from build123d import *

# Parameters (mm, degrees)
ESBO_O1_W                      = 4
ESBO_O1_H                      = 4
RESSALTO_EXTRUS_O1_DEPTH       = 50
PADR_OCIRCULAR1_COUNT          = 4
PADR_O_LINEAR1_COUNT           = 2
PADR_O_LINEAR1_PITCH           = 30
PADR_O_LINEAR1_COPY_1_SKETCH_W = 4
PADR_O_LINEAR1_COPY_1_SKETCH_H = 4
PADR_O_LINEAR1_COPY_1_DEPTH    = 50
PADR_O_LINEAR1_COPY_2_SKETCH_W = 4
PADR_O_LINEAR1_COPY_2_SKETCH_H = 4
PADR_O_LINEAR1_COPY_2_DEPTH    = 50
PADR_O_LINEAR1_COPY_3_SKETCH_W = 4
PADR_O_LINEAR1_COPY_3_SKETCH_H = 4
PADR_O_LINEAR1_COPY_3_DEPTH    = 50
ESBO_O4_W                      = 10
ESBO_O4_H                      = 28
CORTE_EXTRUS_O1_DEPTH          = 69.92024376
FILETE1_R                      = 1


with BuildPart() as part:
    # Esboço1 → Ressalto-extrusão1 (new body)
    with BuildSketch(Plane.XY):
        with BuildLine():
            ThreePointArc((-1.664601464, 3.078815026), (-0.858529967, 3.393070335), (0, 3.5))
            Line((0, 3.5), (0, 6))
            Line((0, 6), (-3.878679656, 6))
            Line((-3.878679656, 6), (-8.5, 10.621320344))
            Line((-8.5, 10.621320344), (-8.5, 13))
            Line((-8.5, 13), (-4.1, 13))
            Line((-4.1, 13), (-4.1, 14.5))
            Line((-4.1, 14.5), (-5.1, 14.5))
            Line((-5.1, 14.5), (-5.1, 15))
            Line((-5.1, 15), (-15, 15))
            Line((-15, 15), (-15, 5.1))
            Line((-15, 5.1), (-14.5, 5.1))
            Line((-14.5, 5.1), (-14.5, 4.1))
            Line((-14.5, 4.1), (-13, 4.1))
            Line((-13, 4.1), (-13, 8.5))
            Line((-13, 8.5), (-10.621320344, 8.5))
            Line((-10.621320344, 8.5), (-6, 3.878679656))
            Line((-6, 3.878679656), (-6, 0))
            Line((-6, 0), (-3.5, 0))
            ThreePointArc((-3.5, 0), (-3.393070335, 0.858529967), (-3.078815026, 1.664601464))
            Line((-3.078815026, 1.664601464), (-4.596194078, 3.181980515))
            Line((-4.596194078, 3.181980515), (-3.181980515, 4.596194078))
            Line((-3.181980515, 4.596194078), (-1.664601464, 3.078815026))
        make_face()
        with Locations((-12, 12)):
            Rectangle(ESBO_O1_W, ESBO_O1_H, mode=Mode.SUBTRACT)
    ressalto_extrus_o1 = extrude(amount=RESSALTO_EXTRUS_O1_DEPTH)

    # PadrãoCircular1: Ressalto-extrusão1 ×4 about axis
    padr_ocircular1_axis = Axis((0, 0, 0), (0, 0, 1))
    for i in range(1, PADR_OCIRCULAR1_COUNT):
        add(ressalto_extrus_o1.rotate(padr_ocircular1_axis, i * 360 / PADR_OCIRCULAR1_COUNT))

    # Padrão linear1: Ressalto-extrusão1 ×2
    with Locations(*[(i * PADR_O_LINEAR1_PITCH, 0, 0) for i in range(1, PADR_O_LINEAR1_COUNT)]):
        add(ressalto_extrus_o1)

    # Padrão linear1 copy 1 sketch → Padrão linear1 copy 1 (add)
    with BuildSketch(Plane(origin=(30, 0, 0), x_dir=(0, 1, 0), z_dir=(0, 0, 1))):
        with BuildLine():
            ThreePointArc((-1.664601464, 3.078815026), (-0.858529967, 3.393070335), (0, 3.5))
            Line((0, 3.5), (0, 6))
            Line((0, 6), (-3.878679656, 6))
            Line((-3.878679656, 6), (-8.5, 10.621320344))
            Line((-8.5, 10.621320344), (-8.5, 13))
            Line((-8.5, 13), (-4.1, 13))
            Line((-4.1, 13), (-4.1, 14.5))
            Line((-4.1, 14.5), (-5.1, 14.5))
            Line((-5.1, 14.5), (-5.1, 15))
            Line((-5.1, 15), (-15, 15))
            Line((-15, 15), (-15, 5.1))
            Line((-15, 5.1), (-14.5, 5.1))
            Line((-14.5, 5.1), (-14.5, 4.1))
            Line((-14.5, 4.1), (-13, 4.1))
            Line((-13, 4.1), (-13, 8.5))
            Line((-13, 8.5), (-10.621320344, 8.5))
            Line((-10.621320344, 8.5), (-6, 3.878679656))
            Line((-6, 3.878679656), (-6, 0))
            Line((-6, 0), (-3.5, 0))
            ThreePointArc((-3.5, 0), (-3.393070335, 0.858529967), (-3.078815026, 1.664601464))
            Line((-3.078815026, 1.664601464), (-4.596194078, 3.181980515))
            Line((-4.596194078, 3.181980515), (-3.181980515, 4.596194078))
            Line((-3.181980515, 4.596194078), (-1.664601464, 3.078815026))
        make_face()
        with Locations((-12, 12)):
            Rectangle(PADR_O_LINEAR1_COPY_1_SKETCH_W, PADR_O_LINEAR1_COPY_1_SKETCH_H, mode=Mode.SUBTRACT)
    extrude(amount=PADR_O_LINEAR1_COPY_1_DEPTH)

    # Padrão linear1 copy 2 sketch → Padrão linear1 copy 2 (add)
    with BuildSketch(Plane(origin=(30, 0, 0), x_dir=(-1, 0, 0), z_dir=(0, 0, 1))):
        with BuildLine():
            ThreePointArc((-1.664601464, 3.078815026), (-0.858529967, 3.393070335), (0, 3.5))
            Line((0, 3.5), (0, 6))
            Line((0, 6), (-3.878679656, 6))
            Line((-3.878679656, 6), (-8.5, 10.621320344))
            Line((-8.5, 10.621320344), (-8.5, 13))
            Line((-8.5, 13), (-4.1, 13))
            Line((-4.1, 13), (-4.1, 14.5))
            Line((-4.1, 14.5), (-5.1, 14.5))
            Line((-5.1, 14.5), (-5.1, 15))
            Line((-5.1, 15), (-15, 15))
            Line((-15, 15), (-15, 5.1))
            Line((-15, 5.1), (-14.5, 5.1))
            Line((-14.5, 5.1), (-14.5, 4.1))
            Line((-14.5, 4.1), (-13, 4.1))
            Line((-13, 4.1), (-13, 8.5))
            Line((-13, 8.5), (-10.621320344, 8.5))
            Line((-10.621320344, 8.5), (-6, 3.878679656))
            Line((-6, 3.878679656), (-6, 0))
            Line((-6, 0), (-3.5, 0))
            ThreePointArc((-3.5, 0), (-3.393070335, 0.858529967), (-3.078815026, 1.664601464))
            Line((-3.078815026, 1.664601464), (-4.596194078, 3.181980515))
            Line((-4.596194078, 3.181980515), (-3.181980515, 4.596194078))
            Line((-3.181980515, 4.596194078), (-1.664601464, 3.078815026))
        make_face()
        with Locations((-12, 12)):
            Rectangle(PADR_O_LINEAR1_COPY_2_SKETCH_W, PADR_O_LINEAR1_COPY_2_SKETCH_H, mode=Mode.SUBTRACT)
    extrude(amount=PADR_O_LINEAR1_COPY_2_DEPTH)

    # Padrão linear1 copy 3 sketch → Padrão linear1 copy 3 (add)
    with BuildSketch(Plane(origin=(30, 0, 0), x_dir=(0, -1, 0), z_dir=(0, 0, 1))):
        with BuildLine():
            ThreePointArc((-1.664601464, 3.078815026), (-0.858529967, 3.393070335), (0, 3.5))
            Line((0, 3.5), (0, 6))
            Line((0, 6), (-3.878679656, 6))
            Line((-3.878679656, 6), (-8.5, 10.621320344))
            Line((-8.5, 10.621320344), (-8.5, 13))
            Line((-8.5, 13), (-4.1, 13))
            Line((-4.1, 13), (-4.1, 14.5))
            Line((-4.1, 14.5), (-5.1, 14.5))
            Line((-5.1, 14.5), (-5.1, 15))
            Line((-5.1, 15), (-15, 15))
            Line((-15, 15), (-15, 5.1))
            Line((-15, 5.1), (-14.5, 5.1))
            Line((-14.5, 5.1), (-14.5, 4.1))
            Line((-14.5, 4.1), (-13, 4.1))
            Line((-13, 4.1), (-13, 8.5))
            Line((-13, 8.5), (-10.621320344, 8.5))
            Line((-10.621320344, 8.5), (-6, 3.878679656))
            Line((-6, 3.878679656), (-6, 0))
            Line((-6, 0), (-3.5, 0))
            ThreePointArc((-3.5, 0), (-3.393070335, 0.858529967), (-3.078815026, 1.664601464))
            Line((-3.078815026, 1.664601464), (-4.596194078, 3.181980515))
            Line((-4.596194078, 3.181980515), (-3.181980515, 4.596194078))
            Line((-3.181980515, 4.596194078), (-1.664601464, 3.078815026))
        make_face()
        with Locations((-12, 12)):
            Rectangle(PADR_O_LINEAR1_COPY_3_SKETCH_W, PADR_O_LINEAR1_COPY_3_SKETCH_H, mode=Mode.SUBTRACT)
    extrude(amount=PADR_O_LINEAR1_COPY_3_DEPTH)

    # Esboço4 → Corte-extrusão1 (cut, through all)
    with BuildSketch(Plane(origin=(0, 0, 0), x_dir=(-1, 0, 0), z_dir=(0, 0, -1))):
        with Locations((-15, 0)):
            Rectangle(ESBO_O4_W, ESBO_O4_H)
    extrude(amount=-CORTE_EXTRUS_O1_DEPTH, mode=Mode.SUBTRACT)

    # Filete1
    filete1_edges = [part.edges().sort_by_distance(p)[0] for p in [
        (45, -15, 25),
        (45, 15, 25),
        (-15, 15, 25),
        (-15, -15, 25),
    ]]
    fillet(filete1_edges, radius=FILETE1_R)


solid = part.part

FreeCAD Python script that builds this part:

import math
import FreeCAD as App
import Part
import Sketcher

V = App.Vector
Q = App.Units.Quantity


def edges_at(feature, points):
    """Names of the edges that pass closest to the given points."""
    edges = feature.Shape.Edges
    near = lambda p: min(range(len(edges)), key=lambda i: edges[i].distToShape(Part.Vertex(*p))[0])
    return sorted({f"Edge{near(p) + 1}" for p in points})

doc = App.newDocument("Part")
body = doc.addObject("PartDesign::Body", "Body")

sketch1 = body.newObject("Sketcher::SketchObject", "Sketch")
sketch1.AttachmentSupport = (doc.getObject("XY_Plane"), [""])
sketch1.MapMode = "FlatFace"
sketch1.addGeometry(Part.ArcOfCircle(Part.Circle(V(0, 0, 0), V(0, 0, 1), 3.5), math.radians(90), math.radians(118)), False)
sketch1.addGeometry(Part.LineSegment(V(0, 3.5, 0), V(0, 6, 0)), False)
sketch1.addGeometry(Part.LineSegment(V(0, 6, 0), V(-3.9, 6, 0)), False)
sketch1.addGeometry(Part.LineSegment(V(-3.9, 6, 0), V(-8.5, 10.6, 0)), False)
sketch1.addGeometry(Part.LineSegment(V(-8.5, 10.6, 0), V(-8.5, 13, 0)), False)
sketch1.addGeometry(Part.LineSegment(V(-8.5, 13, 0), V(-4.1, 13, 0)), False)
sketch1.addGeometry(Part.LineSegment(V(-4.1, 13, 0), V(-4.1, 14.5, 0)), False)
sketch1.addGeometry(Part.LineSegment(V(-4.1, 14.5, 0), V(-5.1, 14.5, 0)), False)
sketch1.addGeometry(Part.LineSegment(V(-5.1, 14.5, 0), V(-5.1, 15, 0)), False)
sketch1.addGeometry(Part.LineSegment(V(-5.1, 15, 0), V(-15, 15, 0)), False)
sketch1.addGeometry(Part.LineSegment(V(-15, 15, 0), V(-15, 5.1, 0)), False)
sketch1.addGeometry(Part.LineSegment(V(-15, 5.1, 0), V(-14.5, 5.1, 0)), False)
sketch1.addGeometry(Part.LineSegment(V(-14.5, 5.1, 0), V(-14.5, 4.1, 0)), False)
sketch1.addGeometry(Part.LineSegment(V(-14.5, 4.1, 0), V(-13, 4.1, 0)), False)
sketch1.addGeometry(Part.LineSegment(V(-13, 4.1, 0), V(-13, 8.5, 0)), False)
sketch1.addGeometry(Part.LineSegment(V(-13, 8.5, 0), V(-10.6, 8.5, 0)), False)
sketch1.addGeometry(Part.LineSegment(V(-10.6, 8.5, 0), V(-6, 3.9, 0)), False)
sketch1.addGeometry(Part.LineSegment(V(-6, 3.9, 0), V(-6, 0, 0)), False)
sketch1.addGeometry(Part.LineSegment(V(-6, 0, 0), V(-3.5, 0, 0)), False)
sketch1.addGeometry(Part.ArcOfCircle(Part.Circle(V(0, 0, 0), V(0, 0, 1), 3.5), math.radians(152), math.radians(180)), False)
sketch1.addGeometry(Part.LineSegment(V(-3.1, 1.7, 0), V(-4.6, 3.2, 0)), False)
sketch1.addGeometry(Part.LineSegment(V(-4.6, 3.2, 0), V(-3.2, 4.6, 0)), False)
sketch1.addGeometry(Part.LineSegment(V(-3.2, 4.6, 0), V(-1.7, 3.1, 0)), False)
sketch1.addGeometry(Part.LineSegment(V(-10, 10, 0), V(-14, 10, 0)), False)
sketch1.addGeometry(Part.LineSegment(V(-14, 10, 0), V(-14, 14, 0)), False)
sketch1.addGeometry(Part.LineSegment(V(-14, 14, 0), V(-10, 14, 0)), False)
sketch1.addGeometry(Part.LineSegment(V(-10, 14, 0), V(-10, 10, 0)), False)
sketch1.addConstraint(Sketcher.Constraint("Coincident", 0, 1, 1, 1))
sketch1.addConstraint(Sketcher.Constraint("Coincident", 1, 2, 2, 1))
sketch1.addConstraint(Sketcher.Constraint("Coincident", 2, 2, 3, 1))
sketch1.addConstraint(Sketcher.Constraint("Coincident", 3, 2, 4, 1))
sketch1.addConstraint(Sketcher.Constraint("Coincident", 4, 2, 5, 1))
sketch1.addConstraint(Sketcher.Constraint("Coincident", 5, 2, 6, 1))
sketch1.addConstraint(Sketcher.Constraint("Coincident", 6, 2, 7, 1))
sketch1.addConstraint(Sketcher.Constraint("Coincident", 7, 2, 8, 1))
sketch1.addConstraint(Sketcher.Constraint("Coincident", 8, 2, 9, 1))
sketch1.addConstraint(Sketcher.Constraint("Coincident", 9, 2, 10, 1))
sketch1.addConstraint(Sketcher.Constraint("Coincident", 10, 2, 11, 1))
sketch1.addConstraint(Sketcher.Constraint("Coincident", 11, 2, 12, 1))
sketch1.addConstraint(Sketcher.Constraint("Coincident", 12, 2, 13, 1))
sketch1.addConstraint(Sketcher.Constraint("Coincident", 13, 2, 14, 1))
sketch1.addConstraint(Sketcher.Constraint("Coincident", 14, 2, 15, 1))
sketch1.addConstraint(Sketcher.Constraint("Coincident", 15, 2, 16, 1))
sketch1.addConstraint(Sketcher.Constraint("Coincident", 16, 2, 17, 1))
sketch1.addConstraint(Sketcher.Constraint("Coincident", 17, 2, 18, 1))
sketch1.addConstraint(Sketcher.Constraint("Coincident", 18, 2, 19, 2))
sketch1.addConstraint(Sketcher.Constraint("Coincident", 19, 1, 20, 1))
sketch1.addConstraint(Sketcher.Constraint("Coincident", 20, 2, 21, 1))
sketch1.addConstraint(Sketcher.Constraint("Coincident", 21, 2, 22, 1))
sketch1.addConstraint(Sketcher.Constraint("Coincident", 22, 2, 0, 2))
sketch1.addConstraint(Sketcher.Constraint("Coincident", 23, 2, 24, 1))
sketch1.addConstraint(Sketcher.Constraint("Coincident", 24, 2, 25, 1))
sketch1.addConstraint(Sketcher.Constraint("Coincident", 25, 2, 26, 1))
sketch1.addConstraint(Sketcher.Constraint("Coincident", 26, 2, 23, 1))
sketch1.addConstraint(Sketcher.Constraint("Vertical", 1))
sketch1.addConstraint(Sketcher.Constraint("Horizontal", 2))
sketch1.addConstraint(Sketcher.Constraint("Vertical", 4))
sketch1.addConstraint(Sketcher.Constraint("Horizontal", 5))
sketch1.addConstraint(Sketcher.Constraint("Vertical", 6))
sketch1.addConstraint(Sketcher.Constraint("Horizontal", 7))
sketch1.addConstraint(Sketcher.Constraint("Vertical", 8))
sketch1.addConstraint(Sketcher.Constraint("Horizontal", 9))
sketch1.addConstraint(Sketcher.Constraint("Vertical", 10))
sketch1.addConstraint(Sketcher.Constraint("Horizontal", 11))
sketch1.addConstraint(Sketcher.Constraint("Vertical", 12))
sketch1.addConstraint(Sketcher.Constraint("Horizontal", 13))
sketch1.addConstraint(Sketcher.Constraint("Vertical", 14))
sketch1.addConstraint(Sketcher.Constraint("Horizontal", 15))
sketch1.addConstraint(Sketcher.Constraint("Vertical", 17))
sketch1.addConstraint(Sketcher.Constraint("Horizontal", 18))
sketch1.addConstraint(Sketcher.Constraint("Horizontal", 23))
sketch1.addConstraint(Sketcher.Constraint("Vertical", 24))
sketch1.addConstraint(Sketcher.Constraint("Horizontal", 25))
sketch1.addConstraint(Sketcher.Constraint("Vertical", 26))
sketch1.addConstraint(Sketcher.Constraint("Coincident", 0, 3, -1, 1))
sketch1.addConstraint(Sketcher.Constraint("Coincident", 19, 3, -1, 1))
sketch1.addConstraint(Sketcher.Constraint("Equal", 0, 19))
sketch1.addConstraint(Sketcher.Constraint("PointOnObject", 0, 1, -2))
sketch1.addConstraint(Sketcher.Constraint("PointOnObject", 17, 2, -1))
sketch1.addConstraint(Sketcher.Constraint("Parallel", 3, 16))
sketch1.addConstraint(Sketcher.Constraint("Parallel", 16, 20))
sketch1.addConstraint(Sketcher.Constraint("Perpendicular", 20, 21))
sketch1.addConstraint(Sketcher.Constraint("Perpendicular", 21, 22))
sketch1.addConstraint(Sketcher.Constraint("Equal", 18, 1))
sketch1.addConstraint(Sketcher.Constraint("Equal", 15, 4))
sketch1.addConstraint(Sketcher.Constraint("Equal", 13, 6))
sketch1.addConstraint(Sketcher.Constraint("Equal", 11, 8))
sketch1.addConstraint(Sketcher.Constraint("Equal", 9, 10))
sketch1.addConstraint(Sketcher.Constraint("Equal", 7, 12))
sketch1.addConstraint(Sketcher.Constraint("Equal", 5, 14))
sketch1.addConstraint(Sketcher.Constraint("Equal", 2, 17))
sketch1.addConstraint(Sketcher.Constraint("Equal", 25, 24))
sketch1.addConstraint(Sketcher.Constraint("Equal", 20, 22))
sketch1.addConstraint(Sketcher.Constraint("Radius", 0, 3.5))
sketch1.addConstraint(Sketcher.Constraint("DistanceX", 7, 2, 7, 1, 1.0))
sketch1.addConstraint(Sketcher.Constraint("DistanceX", 23, 2, 23, 1, 4.0))
sketch1.addConstraint(Sketcher.Constraint("Angle", 3, Q("135 deg")))
sketch1.addConstraint(Sketcher.Constraint("Distance", 21, 2.0))
sketch1.addConstraint(Sketcher.Constraint("DistanceX", 5, 1, 5, 2, 4.4))
sketch1.addConstraint(Sketcher.Constraint("DistanceX", 9, 2, 9, 1, 9.9))
sketch1.addConstraint(Sketcher.Constraint("DistanceX", 11, 1, 11, 2, 0.5))
sketch1.addConstraint(Sketcher.Constraint("DistanceX", 13, 1, 13, 2, 1.5))
sketch1.addConstraint(Sketcher.Constraint("DistanceX", 18, 1, 18, 2, 2.5))
sketch1.addConstraint(Sketcher.Constraint("DistanceY", -1, 1, 4, 2, 13.0))
sketch1.addConstraint(Sketcher.Constraint("DistanceX", 23, 2, -1, 1, 14.0))
sketch1.addConstraint(Sketcher.Constraint("DistanceY", -1, 1, 23, 2, 10.0))
sketch1.addConstraint(Sketcher.Constraint("Distance", 20, 2.145898))
sketch1.addConstraint(Sketcher.Constraint("DistanceX", 2, 2, 2, 1, 3.87868))
pad1 = body.newObject("PartDesign::Pad", "Pad")
pad1.Profile = sketch1
pad1.Length = 50
doc.recompute()

polarpattern = body.newObject("PartDesign::PolarPattern", "PolarPattern")
polarpattern.Originals = [pad1]
polarpattern.Axis = (doc.getObject("Z_Axis"), [""])
polarpattern.Angle = 360
polarpattern.Occurrences = 4
body.Tip = polarpattern
doc.recompute()

linearpattern = body.newObject("PartDesign::LinearPattern", "LinearPattern")
linearpattern.Originals = [pad1]
linearpattern.Direction = (doc.getObject("X_Axis"), [""])
linearpattern.Mode = "offset"
linearpattern.Offset = 30
linearpattern.Occurrences = 2
body.Tip = linearpattern

sketch2 = body.newObject("Sketcher::SketchObject", "Sketch001")
sketch2.AttachmentSupport = (doc.getObject("XY_Plane"), [""])
sketch2.MapMode = "FlatFace"
sketch2.addGeometry(Part.ArcOfCircle(Part.Circle(V(30, 0, 0), V(0, 0, 1), 3.5), math.radians(180), math.radians(208)), False)
sketch2.addGeometry(Part.LineSegment(V(26.5, 0, 0), V(24, 0, 0)), False)
sketch2.addGeometry(Part.LineSegment(V(24, 0, 0), V(24, -3.9, 0)), False)
sketch2.addGeometry(Part.LineSegment(V(24, -3.9, 0), V(19.4, -8.5, 0)), False)
sketch2.addGeometry(Part.LineSegment(V(19.4, -8.5, 0), V(17, -8.5, 0)), False)
sketch2.addGeometry(Part.LineSegment(V(17, -8.5, 0), V(17, -4.1, 0)), False)
sketch2.addGeometry(Part.LineSegment(V(17, -4.1, 0), V(15.5, -4.1, 0)), False)
sketch2.addGeometry(Part.LineSegment(V(15.5, -4.1, 0), V(15.5, -5.1, 0)), False)
sketch2.addGeometry(Part.LineSegment(V(15.5, -5.1, 0), V(15, -5.1, 0)), False)
sketch2.addGeometry(Part.LineSegment(V(15, -5.1, 0), V(15, -15, 0)), False)
sketch2.addGeometry(Part.LineSegment(V(15, -15, 0), V(24.9, -15, 0)), False)
sketch2.addGeometry(Part.LineSegment(V(24.9, -15, 0), V(24.9, -14.5, 0)), False)
sketch2.addGeometry(Part.LineSegment(V(24.9, -14.5, 0), V(25.9, -14.5, 0)), False)
sketch2.addGeometry(Part.LineSegment(V(25.9, -14.5, 0), V(25.9, -13, 0)), False)
sketch2.addGeometry(Part.LineSegment(V(25.9, -13, 0), V(21.5, -13, 0)), False)
sketch2.addGeometry(Part.LineSegment(V(21.5, -13, 0), V(21.5, -10.6, 0)), False)
sketch2.addGeometry(Part.LineSegment(V(21.5, -10.6, 0), V(26.1, -6, 0)), False)
sketch2.addGeometry(Part.LineSegment(V(26.1, -6, 0), V(30, -6, 0)), False)
sketch2.addGeometry(Part.LineSegment(V(30, -6, 0), V(30, -3.5, 0)), False)
sketch2.addGeometry(Part.ArcOfCircle(Part.Circle(V(30, 0, 0), V(0, 0, 1), 3.5), math.radians(-118), math.radians(-90)), False)
sketch2.addGeometry(Part.LineSegment(V(28.3, -3.1, 0), V(26.8, -4.6, 0)), False)
sketch2.addGeometry(Part.LineSegment(V(26.8, -4.6, 0), V(25.4, -3.2, 0)), False)
sketch2.addGeometry(Part.LineSegment(V(25.4, -3.2, 0), V(26.9, -1.7, 0)), False)
sketch2.addGeometry(Part.LineSegment(V(20, -10, 0), V(20, -14, 0)), False)
sketch2.addGeometry(Part.LineSegment(V(20, -14, 0), V(16, -14, 0)), False)
sketch2.addGeometry(Part.LineSegment(V(16, -14, 0), V(16, -10, 0)), False)
sketch2.addGeometry(Part.LineSegment(V(16, -10, 0), V(20, -10, 0)), False)
sketch2.addConstraint(Sketcher.Constraint("Coincident", 0, 1, 1, 1))
sketch2.addConstraint(Sketcher.Constraint("Coincident", 1, 2, 2, 1))
sketch2.addConstraint(Sketcher.Constraint("Coincident", 2, 2, 3, 1))
sketch2.addConstraint(Sketcher.Constraint("Coincident", 3, 2, 4, 1))
sketch2.addConstraint(Sketcher.Constraint("Coincident", 4, 2, 5, 1))
sketch2.addConstraint(Sketcher.Constraint("Coincident", 5, 2, 6, 1))
sketch2.addConstraint(Sketcher.Constraint("Coincident", 6, 2, 7, 1))
sketch2.addConstraint(Sketcher.Constraint("Coincident", 7, 2, 8, 1))
sketch2.addConstraint(Sketcher.Constraint("Coincident", 8, 2, 9, 1))
sketch2.addConstraint(Sketcher.Constraint("Coincident", 9, 2, 10, 1))
sketch2.addConstraint(Sketcher.Constraint("Coincident", 10, 2, 11, 1))
sketch2.addConstraint(Sketcher.Constraint("Coincident", 11, 2, 12, 1))
sketch2.addConstraint(Sketcher.Constraint("Coincident", 12, 2, 13, 1))
sketch2.addConstraint(Sketcher.Constraint("Coincident", 13, 2, 14, 1))
sketch2.addConstraint(Sketcher.Constraint("Coincident", 14, 2, 15, 1))
sketch2.addConstraint(Sketcher.Constraint("Coincident", 15, 2, 16, 1))
sketch2.addConstraint(Sketcher.Constraint("Coincident", 16, 2, 17, 1))
sketch2.addConstraint(Sketcher.Constraint("Coincident", 17, 2, 18, 1))
sketch2.addConstraint(Sketcher.Constraint("Coincident", 18, 2, 19, 2))
sketch2.addConstraint(Sketcher.Constraint("Coincident", 19, 1, 20, 1))
sketch2.addConstraint(Sketcher.Constraint("Coincident", 20, 2, 21, 1))
sketch2.addConstraint(Sketcher.Constraint("Coincident", 21, 2, 22, 1))
sketch2.addConstraint(Sketcher.Constraint("Coincident", 22, 2, 0, 2))
sketch2.addConstraint(Sketcher.Constraint("Coincident", 23, 2, 24, 1))
sketch2.addConstraint(Sketcher.Constraint("Coincident", 24, 2, 25, 1))
sketch2.addConstraint(Sketcher.Constraint("Coincident", 25, 2, 26, 1))
sketch2.addConstraint(Sketcher.Constraint("Coincident", 26, 2, 23, 1))
sketch2.addConstraint(Sketcher.Constraint("Horizontal", 1))
sketch2.addConstraint(Sketcher.Constraint("Vertical", 2))
sketch2.addConstraint(Sketcher.Constraint("Horizontal", 4))
sketch2.addConstraint(Sketcher.Constraint("Vertical", 5))
sketch2.addConstraint(Sketcher.Constraint("Horizontal", 6))
sketch2.addConstraint(Sketcher.Constraint("Vertical", 7))
sketch2.addConstraint(Sketcher.Constraint("Horizontal", 8))
sketch2.addConstraint(Sketcher.Constraint("Vertical", 9))
sketch2.addConstraint(Sketcher.Constraint("Horizontal", 10))
sketch2.addConstraint(Sketcher.Constraint("Vertical", 11))
sketch2.addConstraint(Sketcher.Constraint("Horizontal", 12))
sketch2.addConstraint(Sketcher.Constraint("Vertical", 13))
sketch2.addConstraint(Sketcher.Constraint("Horizontal", 14))
sketch2.addConstraint(Sketcher.Constraint("Vertical", 15))
sketch2.addConstraint(Sketcher.Constraint("Horizontal", 17))
sketch2.addConstraint(Sketcher.Constraint("Vertical", 18))
sketch2.addConstraint(Sketcher.Constraint("Vertical", 23))
sketch2.addConstraint(Sketcher.Constraint("Horizontal", 24))
sketch2.addConstraint(Sketcher.Constraint("Vertical", 25))
sketch2.addConstraint(Sketcher.Constraint("Horizontal", 26))
sketch2.addConstraint(Sketcher.Constraint("Coincident", 19, 3, 0, 3))
sketch2.addConstraint(Sketcher.Constraint("Equal", 0, 19))
sketch2.addConstraint(Sketcher.Constraint("PointOnObject", 0, 3, -1))
sketch2.addConstraint(Sketcher.Constraint("PointOnObject", 0, 1, -1))
sketch2.addConstraint(Sketcher.Constraint("Parallel", 3, 16))
sketch2.addConstraint(Sketcher.Constraint("Parallel", 16, 20))
sketch2.addConstraint(Sketcher.Constraint("Perpendicular", 20, 21))
sketch2.addConstraint(Sketcher.Constraint("Perpendicular", 21, 22))
sketch2.addConstraint(Sketcher.Constraint("Vertical", 19, 3, 17, 2))
sketch2.addConstraint(Sketcher.Constraint("Equal", 17, 2))
sketch2.addConstraint(Sketcher.Constraint("Equal", 14, 5))
sketch2.addConstraint(Sketcher.Constraint("Equal", 12, 7))
sketch2.addConstraint(Sketcher.Constraint("Equal", 10, 9))
sketch2.addConstraint(Sketcher.Constraint("Equal", 8, 11))
sketch2.addConstraint(Sketcher.Constraint("Equal", 6, 13))
sketch2.addConstraint(Sketcher.Constraint("Equal", 4, 15))
sketch2.addConstraint(Sketcher.Constraint("Equal", 1, 18))
sketch2.addConstraint(Sketcher.Constraint("Equal", 26, 23))
sketch2.addConstraint(Sketcher.Constraint("Equal", 20, 22))
sketch2.addConstraint(Sketcher.Constraint("Radius", 0, 3.5))
sketch2.addConstraint(Sketcher.Constraint("DistanceX", 12, 1, 12, 2, 1.0))
sketch2.addConstraint(Sketcher.Constraint("DistanceX", 24, 2, 24, 1, 4.0))
sketch2.addConstraint(Sketcher.Constraint("Angle", 3, Q("-135 deg")))
sketch2.addConstraint(Sketcher.Constraint("Distance", 21, 2.0))
sketch2.addConstraint(Sketcher.Constraint("DistanceX", 1, 2, 1, 1, 2.5))
sketch2.addConstraint(Sketcher.Constraint("DistanceX", 6, 2, 6, 1, 1.5))
sketch2.addConstraint(Sketcher.Constraint("DistanceX", 8, 2, 8, 1, 0.5))
sketch2.addConstraint(Sketcher.Constraint("DistanceX", 10, 1, 10, 2, 9.9))
sketch2.addConstraint(Sketcher.Constraint("DistanceX", 14, 2, 14, 1, 4.4))
sketch2.addConstraint(Sketcher.Constraint("DistanceX", -1, 1, 0, 3, 30.0))
sketch2.addConstraint(Sketcher.Constraint("DistanceX", -1, 1, 4, 2, 17.0))
sketch2.addConstraint(Sketcher.Constraint("DistanceX", -1, 1, 23, 2, 20.0))
sketch2.addConstraint(Sketcher.Constraint("DistanceY", 23, 2, -1, 1, 14.0))
sketch2.addConstraint(Sketcher.Constraint("Distance", 20, 2.145898))
sketch2.addConstraint(Sketcher.Constraint("DistanceX", 4, 2, 4, 1, 2.37868))
pad2 = body.newObject("PartDesign::Pad", "Pad001")
pad2.Profile = sketch2
pad2.Length = 50

sketch3 = body.newObject("Sketcher::SketchObject", "Sketch002")
sketch3.AttachmentSupport = (doc.getObject("XY_Plane"), [""])
sketch3.MapMode = "FlatFace"
sketch3.addGeometry(Part.ArcOfCircle(Part.Circle(V(30, 0, 0), V(0, 0, 1), 3.5), math.radians(-90), math.radians(-62)), False)
sketch3.addGeometry(Part.LineSegment(V(30, -3.5, 0), V(30, -6, 0)), False)
sketch3.addGeometry(Part.LineSegment(V(30, -6, 0), V(33.9, -6, 0)), False)
sketch3.addGeometry(Part.LineSegment(V(33.9, -6, 0), V(38.5, -10.6, 0)), False)
sketch3.addGeometry(Part.LineSegment(V(38.5, -10.6, 0), V(38.5, -13, 0)), False)
sketch3.addGeometry(Part.LineSegment(V(38.5, -13, 0), V(34.1, -13, 0)), False)
sketch3.addGeometry(Part.LineSegment(V(34.1, -13, 0), V(34.1, -14.5, 0)), False)
sketch3.addGeometry(Part.LineSegment(V(34.1, -14.5, 0), V(35.1, -14.5, 0)), False)
sketch3.addGeometry(Part.LineSegment(V(35.1, -14.5, 0), V(35.1, -15, 0)), False)
sketch3.addGeometry(Part.LineSegment(V(35.1, -15, 0), V(45, -15, 0)), False)
sketch3.addGeometry(Part.LineSegment(V(45, -15, 0), V(45, -5.1, 0)), False)
sketch3.addGeometry(Part.LineSegment(V(45, -5.1, 0), V(44.5, -5.1, 0)), False)
sketch3.addGeometry(Part.LineSegment(V(44.5, -5.1, 0), V(44.5, -4.1, 0)), False)
sketch3.addGeometry(Part.LineSegment(V(44.5, -4.1, 0), V(43, -4.1, 0)), False)
sketch3.addGeometry(Part.LineSegment(V(43, -4.1, 0), V(43, -8.5, 0)), False)
sketch3.addGeometry(Part.LineSegment(V(43, -8.5, 0), V(40.6, -8.5, 0)), False)
sketch3.addGeometry(Part.LineSegment(V(40.6, -8.5, 0), V(36, -3.9, 0)), False)
sketch3.addGeometry(Part.LineSegment(V(36, -3.9, 0), V(36, 0, 0)), False)
sketch3.addGeometry(Part.LineSegment(V(36, 0, 0), V(33.5, 0, 0)), False)
sketch3.addGeometry(Part.ArcOfCircle(Part.Circle(V(30, 0, 0), V(0, 0, 1), 3.5), math.radians(-28), math.radians(0)), False)
sketch3.addGeometry(Part.LineSegment(V(33.1, -1.7, 0), V(34.6, -3.2, 0)), False)
sketch3.addGeometry(Part.LineSegment(V(34.6, -3.2, 0), V(33.2, -4.6, 0)), False)
sketch3.addGeometry(Part.LineSegment(V(33.2, -4.6, 0), V(31.7, -3.1, 0)), False)
sketch3.addGeometry(Part.LineSegment(V(40, -10, 0), V(44, -10, 0)), False)
sketch3.addGeometry(Part.LineSegment(V(44, -10, 0), V(44, -14, 0)), False)
sketch3.addGeometry(Part.LineSegment(V(44, -14, 0), V(40, -14, 0)), False)
sketch3.addGeometry(Part.LineSegment(V(40, -14, 0), V(40, -10, 0)), False)
sketch3.addConstraint(Sketcher.Constraint("Coincident", 0, 1, 1, 1))
sketch3.addConstraint(Sketcher.Constraint("Coincident", 1, 2, 2, 1))
sketch3.addConstraint(Sketcher.Constraint("Coincident", 2, 2, 3, 1))
sketch3.addConstraint(Sketcher.Constraint("Coincident", 3, 2, 4, 1))
sketch3.addConstraint(Sketcher.Constraint("Coincident", 4, 2, 5, 1))
sketch3.addConstraint(Sketcher.Constraint("Coincident", 5, 2, 6, 1))
sketch3.addConstraint(Sketcher.Constraint("Coincident", 6, 2, 7, 1))
sketch3.addConstraint(Sketcher.Constraint("Coincident", 7, 2, 8, 1))
sketch3.addConstraint(Sketcher.Constraint("Coincident", 8, 2, 9, 1))
sketch3.addConstraint(Sketcher.Constraint("Coincident", 9, 2, 10, 1))
sketch3.addConstraint(Sketcher.Constraint("Coincident", 10, 2, 11, 1))
sketch3.addConstraint(Sketcher.Constraint("Coincident", 11, 2, 12, 1))
sketch3.addConstraint(Sketcher.Constraint("Coincident", 12, 2, 13, 1))
sketch3.addConstraint(Sketcher.Constraint("Coincident", 13, 2, 14, 1))
sketch3.addConstraint(Sketcher.Constraint("Coincident", 14, 2, 15, 1))
sketch3.addConstraint(Sketcher.Constraint("Coincident", 15, 2, 16, 1))
sketch3.addConstraint(Sketcher.Constraint("Coincident", 16, 2, 17, 1))
sketch3.addConstraint(Sketcher.Constraint("Coincident", 17, 2, 18, 1))
sketch3.addConstraint(Sketcher.Constraint("Coincident", 18, 2, 19, 2))
sketch3.addConstraint(Sketcher.Constraint("Coincident", 19, 1, 20, 1))
sketch3.addConstraint(Sketcher.Constraint("Coincident", 20, 2, 21, 1))
sketch3.addConstraint(Sketcher.Constraint("Coincident", 21, 2, 22, 1))
sketch3.addConstraint(Sketcher.Constraint("Coincident", 22, 2, 0, 2))
sketch3.addConstraint(Sketcher.Constraint("Coincident", 23, 2, 24, 1))
sketch3.addConstraint(Sketcher.Constraint("Coincident", 24, 2, 25, 1))
sketch3.addConstraint(Sketcher.Constraint("Coincident", 25, 2, 26, 1))
sketch3.addConstraint(Sketcher.Constraint("Coincident", 26, 2, 23, 1))
sketch3.addConstraint(Sketcher.Constraint("Vertical", 1))
sketch3.addConstraint(Sketcher.Constraint("Horizontal", 2))
sketch3.addConstraint(Sketcher.Constraint("Vertical", 4))
sketch3.addConstraint(Sketcher.Constraint("Horizontal", 5))
sketch3.addConstraint(Sketcher.Constraint("Vertical", 6))
sketch3.addConstraint(Sketcher.Constraint("Horizontal", 7))
sketch3.addConstraint(Sketcher.Constraint("Vertical", 8))
sketch3.addConstraint(Sketcher.Constraint("Horizontal", 9))
sketch3.addConstraint(Sketcher.Constraint("Vertical", 10))
sketch3.addConstraint(Sketcher.Constraint("Horizontal", 11))
sketch3.addConstraint(Sketcher.Constraint("Vertical", 12))
sketch3.addConstraint(Sketcher.Constraint("Horizontal", 13))
sketch3.addConstraint(Sketcher.Constraint("Vertical", 14))
sketch3.addConstraint(Sketcher.Constraint("Horizontal", 15))
sketch3.addConstraint(Sketcher.Constraint("Vertical", 17))
sketch3.addConstraint(Sketcher.Constraint("Horizontal", 18))
sketch3.addConstraint(Sketcher.Constraint("Horizontal", 23))
sketch3.addConstraint(Sketcher.Constraint("Vertical", 24))
sketch3.addConstraint(Sketcher.Constraint("Horizontal", 25))
sketch3.addConstraint(Sketcher.Constraint("Vertical", 26))
sketch3.addConstraint(Sketcher.Constraint("Coincident", 19, 3, 0, 3))
sketch3.addConstraint(Sketcher.Constraint("Equal", 0, 19))
sketch3.addConstraint(Sketcher.Constraint("PointOnObject", 0, 3, -1))
sketch3.addConstraint(Sketcher.Constraint("PointOnObject", 17, 2, -1))
sketch3.addConstraint(Sketcher.Constraint("Parallel", 3, 16))
sketch3.addConstraint(Sketcher.Constraint("Parallel", 16, 20))
sketch3.addConstraint(Sketcher.Constraint("Perpendicular", 20, 21))
sketch3.addConstraint(Sketcher.Constraint("Perpendicular", 21, 22))
sketch3.addConstraint(Sketcher.Constraint("Vertical", 19, 3, 0, 1))
sketch3.addConstraint(Sketcher.Constraint("Equal", 18, 1))
sketch3.addConstraint(Sketcher.Constraint("Equal", 15, 4))
sketch3.addConstraint(Sketcher.Constraint("Equal", 13, 6))
sketch3.addConstraint(Sketcher.Constraint("Equal", 11, 8))
sketch3.addConstraint(Sketcher.Constraint("Equal", 9, 10))
sketch3.addConstraint(Sketcher.Constraint("Equal", 7, 12))
sketch3.addConstraint(Sketcher.Constraint("Equal", 5, 14))
sketch3.addConstraint(Sketcher.Constraint("Equal", 2, 17))
sketch3.addConstraint(Sketcher.Constraint("Equal", 25, 24))
sketch3.addConstraint(Sketcher.Constraint("Equal", 20, 22))
sketch3.addConstraint(Sketcher.Constraint("Radius", 0, 3.5))
sketch3.addConstraint(Sketcher.Constraint("DistanceX", 7, 1, 7, 2, 1.0))
sketch3.addConstraint(Sketcher.Constraint("DistanceX", 23, 1, 23, 2, 4.0))
sketch3.addConstraint(Sketcher.Constraint("Angle", 3, Q("-45 deg")))
sketch3.addConstraint(Sketcher.Constraint("Distance", 21, 2.0))
sketch3.addConstraint(Sketcher.Constraint("DistanceX", 5, 2, 5, 1, 4.4))
sketch3.addConstraint(Sketcher.Constraint("DistanceX", 9, 1, 9, 2, 9.9))
sketch3.addConstraint(Sketcher.Constraint("DistanceX", 11, 2, 11, 1, 0.5))
sketch3.addConstraint(Sketcher.Constraint("DistanceX", 13, 2, 13, 1, 1.5))
sketch3.addConstraint(Sketcher.Constraint("DistanceX", 18, 2, 18, 1, 2.5))
sketch3.addConstraint(Sketcher.Constraint("DistanceX", -1, 1, 0, 3, 30.0))
sketch3.addConstraint(Sketcher.Constraint("DistanceY", 4, 2, -1, 1, 13.0))
sketch3.addConstraint(Sketcher.Constraint("DistanceX", -1, 1, 23, 2, 44.0))
sketch3.addConstraint(Sketcher.Constraint("DistanceY", 23, 2, -1, 1, 10.0))
sketch3.addConstraint(Sketcher.Constraint("Distance", 20, 2.145898))
sketch3.addConstraint(Sketcher.Constraint("DistanceX", 2, 1, 2, 2, 3.87868))
pad3 = body.newObject("PartDesign::Pad", "Pad002")
pad3.Profile = sketch3
pad3.Length = 50

sketch4 = body.newObject("Sketcher::SketchObject", "Sketch003")
sketch4.AttachmentSupport = (doc.getObject("XY_Plane"), [""])
sketch4.MapMode = "FlatFace"
sketch4.addGeometry(Part.ArcOfCircle(Part.Circle(V(30, 0, 0), V(0, 0, 1), 3.5), math.radians(0), math.radians(28)), False)
sketch4.addGeometry(Part.LineSegment(V(33.5, 0, 0), V(36, 0, 0)), False)
sketch4.addGeometry(Part.LineSegment(V(36, 0, 0), V(36, 3.9, 0)), False)
sketch4.addGeometry(Part.LineSegment(V(36, 3.9, 0), V(40.6, 8.5, 0)), False)
sketch4.addGeometry(Part.LineSegment(V(40.6, 8.5, 0), V(43, 8.5, 0)), False)
sketch4.addGeometry(Part.LineSegment(V(43, 8.5, 0), V(43, 4.1, 0)), False)
sketch4.addGeometry(Part.LineSegment(V(43, 4.1, 0), V(44.5, 4.1, 0)), False)
sketch4.addGeometry(Part.LineSegment(V(44.5, 4.1, 0), V(44.5, 5.1, 0)), False)
sketch4.addGeometry(Part.LineSegment(V(44.5, 5.1, 0), V(45, 5.1, 0)), False)
sketch4.addGeometry(Part.LineSegment(V(45, 5.1, 0), V(45, 15, 0)), False)
sketch4.addGeometry(Part.LineSegment(V(45, 15, 0), V(35.1, 15, 0)), False)
sketch4.addGeometry(Part.LineSegment(V(35.1, 15, 0), V(35.1, 14.5, 0)), False)
sketch4.addGeometry(Part.LineSegment(V(35.1, 14.5, 0), V(34.1, 14.5, 0)), False)
sketch4.addGeometry(Part.LineSegment(V(34.1, 14.5, 0), V(34.1, 13, 0)), False)
sketch4.addGeometry(Part.LineSegment(V(34.1, 13, 0), V(38.5, 13, 0)), False)
sketch4.addGeometry(Part.LineSegment(V(38.5, 13, 0), V(38.5, 10.6, 0)), False)
sketch4.addGeometry(Part.LineSegment(V(38.5, 10.6, 0), V(33.9, 6, 0)), False)
sketch4.addGeometry(Part.LineSegment(V(33.9, 6, 0), V(30, 6, 0)), False)
sketch4.addGeometry(Part.LineSegment(V(30, 6, 0), V(30, 3.5, 0)), False)
sketch4.addGeometry(Part.ArcOfCircle(Part.Circle(V(30, 0, 0), V(0, 0, 1), 3.5), math.radians(62), math.radians(90)), False)
sketch4.addGeometry(Part.LineSegment(V(31.7, 3.1, 0), V(33.2, 4.6, 0)), False)
sketch4.addGeometry(Part.LineSegment(V(33.2, 4.6, 0), V(34.6, 3.2, 0)), False)
sketch4.addGeometry(Part.LineSegment(V(34.6, 3.2, 0), V(33.1, 1.7, 0)), False)
sketch4.addGeometry(Part.LineSegment(V(40, 10, 0), V(40, 14, 0)), False)
sketch4.addGeometry(Part.LineSegment(V(40, 14, 0), V(44, 14, 0)), False)
sketch4.addGeometry(Part.LineSegment(V(44, 14, 0), V(44, 10, 0)), False)
sketch4.addGeometry(Part.LineSegment(V(44, 10, 0), V(40, 10, 0)), False)
sketch4.addConstraint(Sketcher.Constraint("Coincident", 0, 1, 1, 1))
sketch4.addConstraint(Sketcher.Constraint("Coincident", 1, 2, 2, 1))
sketch4.addConstraint(Sketcher.Constraint("Coincident", 2, 2, 3, 1))
sketch4.addConstraint(Sketcher.Constraint("Coincident", 3, 2, 4, 1))
sketch4.addConstraint(Sketcher.Constraint("Coincident", 4, 2, 5, 1))
sketch4.addConstraint(Sketcher.Constraint("Coincident", 5, 2, 6, 1))
sketch4.addConstraint(Sketcher.Constraint("Coincident", 6, 2, 7, 1))
sketch4.addConstraint(Sketcher.Constraint("Coincident", 7, 2, 8, 1))
sketch4.addConstraint(Sketcher.Constraint("Coincident", 8, 2, 9, 1))
sketch4.addConstraint(Sketcher.Constraint("Coincident", 9, 2, 10, 1))
sketch4.addConstraint(Sketcher.Constraint("Coincident", 10, 2, 11, 1))
sketch4.addConstraint(Sketcher.Constraint("Coincident", 11, 2, 12, 1))
sketch4.addConstraint(Sketcher.Constraint("Coincident", 12, 2, 13, 1))
sketch4.addConstraint(Sketcher.Constraint("Coincident", 13, 2, 14, 1))
sketch4.addConstraint(Sketcher.Constraint("Coincident", 14, 2, 15, 1))
sketch4.addConstraint(Sketcher.Constraint("Coincident", 15, 2, 16, 1))
sketch4.addConstraint(Sketcher.Constraint("Coincident", 16, 2, 17, 1))
sketch4.addConstraint(Sketcher.Constraint("Coincident", 17, 2, 18, 1))
sketch4.addConstraint(Sketcher.Constraint("Coincident", 18, 2, 19, 2))
sketch4.addConstraint(Sketcher.Constraint("Coincident", 19, 1, 20, 1))
sketch4.addConstraint(Sketcher.Constraint("Coincident", 20, 2, 21, 1))
sketch4.addConstraint(Sketcher.Constraint("Coincident", 21, 2, 22, 1))
sketch4.addConstraint(Sketcher.Constraint("Coincident", 22, 2, 0, 2))
sketch4.addConstraint(Sketcher.Constraint("Coincident", 23, 2, 24, 1))
sketch4.addConstraint(Sketcher.Constraint("Coincident", 24, 2, 25, 1))
sketch4.addConstraint(Sketcher.Constraint("Coincident", 25, 2, 26, 1))
sketch4.addConstraint(Sketcher.Constraint("Coincident", 26, 2, 23, 1))
sketch4.addConstraint(Sketcher.Constraint("Horizontal", 1))
sketch4.addConstraint(Sketcher.Constraint("Vertical", 2))
sketch4.addConstraint(Sketcher.Constraint("Horizontal", 4))
sketch4.addConstraint(Sketcher.Constraint("Vertical", 5))
sketch4.addConstraint(Sketcher.Constraint("Horizontal", 6))
sketch4.addConstraint(Sketcher.Constraint("Vertical", 7))
sketch4.addConstraint(Sketcher.Constraint("Horizontal", 8))
sketch4.addConstraint(Sketcher.Constraint("Vertical", 9))
sketch4.addConstraint(Sketcher.Constraint("Horizontal", 10))
sketch4.addConstraint(Sketcher.Constraint("Vertical", 11))
sketch4.addConstraint(Sketcher.Constraint("Horizontal", 12))
sketch4.addConstraint(Sketcher.Constraint("Vertical", 13))
sketch4.addConstraint(Sketcher.Constraint("Horizontal", 14))
sketch4.addConstraint(Sketcher.Constraint("Vertical", 15))
sketch4.addConstraint(Sketcher.Constraint("Horizontal", 17))
sketch4.addConstraint(Sketcher.Constraint("Vertical", 18))
sketch4.addConstraint(Sketcher.Constraint("Vertical", 23))
sketch4.addConstraint(Sketcher.Constraint("Horizontal", 24))
sketch4.addConstraint(Sketcher.Constraint("Vertical", 25))
sketch4.addConstraint(Sketcher.Constraint("Horizontal", 26))
sketch4.addConstraint(Sketcher.Constraint("Coincident", 19, 3, 0, 3))
sketch4.addConstraint(Sketcher.Constraint("Equal", 0, 19))
sketch4.addConstraint(Sketcher.Constraint("PointOnObject", 0, 3, -1))
sketch4.addConstraint(Sketcher.Constraint("PointOnObject", 0, 1, -1))
sketch4.addConstraint(Sketcher.Constraint("Parallel", 3, 16))
sketch4.addConstraint(Sketcher.Constraint("Parallel", 16, 20))
sketch4.addConstraint(Sketcher.Constraint("Perpendicular", 20, 21))
sketch4.addConstraint(Sketcher.Constraint("Perpendicular", 21, 22))
sketch4.addConstraint(Sketcher.Constraint("Vertical", 19, 3, 17, 2))
sketch4.addConstraint(Sketcher.Constraint("Equal", 17, 2))
sketch4.addConstraint(Sketcher.Constraint("Equal", 14, 5))
sketch4.addConstraint(Sketcher.Constraint("Equal", 12, 7))
sketch4.addConstraint(Sketcher.Constraint("Equal", 10, 9))
sketch4.addConstraint(Sketcher.Constraint("Equal", 8, 11))
sketch4.addConstraint(Sketcher.Constraint("Equal", 6, 13))
sketch4.addConstraint(Sketcher.Constraint("Equal", 4, 15))
sketch4.addConstraint(Sketcher.Constraint("Equal", 1, 18))
sketch4.addConstraint(Sketcher.Constraint("Equal", 26, 23))
sketch4.addConstraint(Sketcher.Constraint("Equal", 20, 22))
sketch4.addConstraint(Sketcher.Constraint("Radius", 0, 3.5))
sketch4.addConstraint(Sketcher.Constraint("DistanceX", 12, 2, 12, 1, 1.0))
sketch4.addConstraint(Sketcher.Constraint("DistanceX", 24, 1, 24, 2, 4.0))
sketch4.addConstraint(Sketcher.Constraint("Angle", 3, Q("45 deg")))
sketch4.addConstraint(Sketcher.Constraint("Distance", 21, 2.0))
sketch4.addConstraint(Sketcher.Constraint("DistanceX", 1, 1, 1, 2, 2.5))
sketch4.addConstraint(Sketcher.Constraint("DistanceX", 6, 1, 6, 2, 1.5))
sketch4.addConstraint(Sketcher.Constraint("DistanceX", 8, 1, 8, 2, 0.5))
sketch4.addConstraint(Sketcher.Constraint("DistanceX", 10, 2, 10, 1, 9.9))
sketch4.addConstraint(Sketcher.Constraint("DistanceX", 14, 1, 14, 2, 4.4))
sketch4.addConstraint(Sketcher.Constraint("DistanceX", -1, 1, 0, 3, 30.0))
sketch4.addConstraint(Sketcher.Constraint("DistanceX", -1, 1, 4, 2, 43.0))
sketch4.addConstraint(Sketcher.Constraint("DistanceX", -1, 1, 23, 2, 40.0))
sketch4.addConstraint(Sketcher.Constraint("DistanceY", -1, 1, 23, 2, 14.0))
sketch4.addConstraint(Sketcher.Constraint("Distance", 20, 2.145898))
sketch4.addConstraint(Sketcher.Constraint("DistanceX", 4, 1, 4, 2, 2.37868))
pad4 = body.newObject("PartDesign::Pad", "Pad003")
pad4.Profile = sketch4
pad4.Length = 50

sketch5 = body.newObject("Sketcher::SketchObject", "Sketch004")
sketch5.AttachmentSupport = (doc.getObject("XY_Plane"), [""])
sketch5.MapMode = "FlatFace"
sketch5.addGeometry(Part.LineSegment(V(20, 14, 0), V(20, -14, 0)), False)
sketch5.addGeometry(Part.LineSegment(V(20, -14, 0), V(10, -14, 0)), False)
sketch5.addGeometry(Part.LineSegment(V(10, -14, 0), V(10, 14, 0)), False)
sketch5.addGeometry(Part.LineSegment(V(10, 14, 0), V(20, 14, 0)), False)
sketch5.addConstraint(Sketcher.Constraint("Coincident", 0, 2, 1, 1))
sketch5.addConstraint(Sketcher.Constraint("Coincident", 1, 2, 2, 1))
sketch5.addConstraint(Sketcher.Constraint("Coincident", 2, 2, 3, 1))
sketch5.addConstraint(Sketcher.Constraint("Coincident", 3, 2, 0, 1))
sketch5.addConstraint(Sketcher.Constraint("Vertical", 0))
sketch5.addConstraint(Sketcher.Constraint("Horizontal", 1))
sketch5.addConstraint(Sketcher.Constraint("Vertical", 2))
sketch5.addConstraint(Sketcher.Constraint("Horizontal", 3))
sketch5.addConstraint(Sketcher.Constraint("DistanceX", 1, 2, 1, 1, 10.0))
sketch5.addConstraint(Sketcher.Constraint("DistanceY", 0, 2, 0, 1, 28.0))
sketch5.addConstraint(Sketcher.Constraint("DistanceX", -1, 1, 0, 2, 20.0))
sketch5.addConstraint(Sketcher.Constraint("DistanceY", 0, 2, -1, 1, 14.0))
pocket1 = body.newObject("PartDesign::Pocket", "Pocket")
pocket1.Profile = sketch5
pocket1.Type = "ThroughAll"
pocket1.Reversed = True
doc.recompute()

fillet = body.newObject("PartDesign::Fillet", "Fillet")
fillet.Base = (pocket1, edges_at(pocket1, [
    (45, -15, 25),
    (45, 15, 25),
    (-15, 15, 25),
    (-15, -15, 25),
]))
fillet.Radius = 1

doc.recompute()
